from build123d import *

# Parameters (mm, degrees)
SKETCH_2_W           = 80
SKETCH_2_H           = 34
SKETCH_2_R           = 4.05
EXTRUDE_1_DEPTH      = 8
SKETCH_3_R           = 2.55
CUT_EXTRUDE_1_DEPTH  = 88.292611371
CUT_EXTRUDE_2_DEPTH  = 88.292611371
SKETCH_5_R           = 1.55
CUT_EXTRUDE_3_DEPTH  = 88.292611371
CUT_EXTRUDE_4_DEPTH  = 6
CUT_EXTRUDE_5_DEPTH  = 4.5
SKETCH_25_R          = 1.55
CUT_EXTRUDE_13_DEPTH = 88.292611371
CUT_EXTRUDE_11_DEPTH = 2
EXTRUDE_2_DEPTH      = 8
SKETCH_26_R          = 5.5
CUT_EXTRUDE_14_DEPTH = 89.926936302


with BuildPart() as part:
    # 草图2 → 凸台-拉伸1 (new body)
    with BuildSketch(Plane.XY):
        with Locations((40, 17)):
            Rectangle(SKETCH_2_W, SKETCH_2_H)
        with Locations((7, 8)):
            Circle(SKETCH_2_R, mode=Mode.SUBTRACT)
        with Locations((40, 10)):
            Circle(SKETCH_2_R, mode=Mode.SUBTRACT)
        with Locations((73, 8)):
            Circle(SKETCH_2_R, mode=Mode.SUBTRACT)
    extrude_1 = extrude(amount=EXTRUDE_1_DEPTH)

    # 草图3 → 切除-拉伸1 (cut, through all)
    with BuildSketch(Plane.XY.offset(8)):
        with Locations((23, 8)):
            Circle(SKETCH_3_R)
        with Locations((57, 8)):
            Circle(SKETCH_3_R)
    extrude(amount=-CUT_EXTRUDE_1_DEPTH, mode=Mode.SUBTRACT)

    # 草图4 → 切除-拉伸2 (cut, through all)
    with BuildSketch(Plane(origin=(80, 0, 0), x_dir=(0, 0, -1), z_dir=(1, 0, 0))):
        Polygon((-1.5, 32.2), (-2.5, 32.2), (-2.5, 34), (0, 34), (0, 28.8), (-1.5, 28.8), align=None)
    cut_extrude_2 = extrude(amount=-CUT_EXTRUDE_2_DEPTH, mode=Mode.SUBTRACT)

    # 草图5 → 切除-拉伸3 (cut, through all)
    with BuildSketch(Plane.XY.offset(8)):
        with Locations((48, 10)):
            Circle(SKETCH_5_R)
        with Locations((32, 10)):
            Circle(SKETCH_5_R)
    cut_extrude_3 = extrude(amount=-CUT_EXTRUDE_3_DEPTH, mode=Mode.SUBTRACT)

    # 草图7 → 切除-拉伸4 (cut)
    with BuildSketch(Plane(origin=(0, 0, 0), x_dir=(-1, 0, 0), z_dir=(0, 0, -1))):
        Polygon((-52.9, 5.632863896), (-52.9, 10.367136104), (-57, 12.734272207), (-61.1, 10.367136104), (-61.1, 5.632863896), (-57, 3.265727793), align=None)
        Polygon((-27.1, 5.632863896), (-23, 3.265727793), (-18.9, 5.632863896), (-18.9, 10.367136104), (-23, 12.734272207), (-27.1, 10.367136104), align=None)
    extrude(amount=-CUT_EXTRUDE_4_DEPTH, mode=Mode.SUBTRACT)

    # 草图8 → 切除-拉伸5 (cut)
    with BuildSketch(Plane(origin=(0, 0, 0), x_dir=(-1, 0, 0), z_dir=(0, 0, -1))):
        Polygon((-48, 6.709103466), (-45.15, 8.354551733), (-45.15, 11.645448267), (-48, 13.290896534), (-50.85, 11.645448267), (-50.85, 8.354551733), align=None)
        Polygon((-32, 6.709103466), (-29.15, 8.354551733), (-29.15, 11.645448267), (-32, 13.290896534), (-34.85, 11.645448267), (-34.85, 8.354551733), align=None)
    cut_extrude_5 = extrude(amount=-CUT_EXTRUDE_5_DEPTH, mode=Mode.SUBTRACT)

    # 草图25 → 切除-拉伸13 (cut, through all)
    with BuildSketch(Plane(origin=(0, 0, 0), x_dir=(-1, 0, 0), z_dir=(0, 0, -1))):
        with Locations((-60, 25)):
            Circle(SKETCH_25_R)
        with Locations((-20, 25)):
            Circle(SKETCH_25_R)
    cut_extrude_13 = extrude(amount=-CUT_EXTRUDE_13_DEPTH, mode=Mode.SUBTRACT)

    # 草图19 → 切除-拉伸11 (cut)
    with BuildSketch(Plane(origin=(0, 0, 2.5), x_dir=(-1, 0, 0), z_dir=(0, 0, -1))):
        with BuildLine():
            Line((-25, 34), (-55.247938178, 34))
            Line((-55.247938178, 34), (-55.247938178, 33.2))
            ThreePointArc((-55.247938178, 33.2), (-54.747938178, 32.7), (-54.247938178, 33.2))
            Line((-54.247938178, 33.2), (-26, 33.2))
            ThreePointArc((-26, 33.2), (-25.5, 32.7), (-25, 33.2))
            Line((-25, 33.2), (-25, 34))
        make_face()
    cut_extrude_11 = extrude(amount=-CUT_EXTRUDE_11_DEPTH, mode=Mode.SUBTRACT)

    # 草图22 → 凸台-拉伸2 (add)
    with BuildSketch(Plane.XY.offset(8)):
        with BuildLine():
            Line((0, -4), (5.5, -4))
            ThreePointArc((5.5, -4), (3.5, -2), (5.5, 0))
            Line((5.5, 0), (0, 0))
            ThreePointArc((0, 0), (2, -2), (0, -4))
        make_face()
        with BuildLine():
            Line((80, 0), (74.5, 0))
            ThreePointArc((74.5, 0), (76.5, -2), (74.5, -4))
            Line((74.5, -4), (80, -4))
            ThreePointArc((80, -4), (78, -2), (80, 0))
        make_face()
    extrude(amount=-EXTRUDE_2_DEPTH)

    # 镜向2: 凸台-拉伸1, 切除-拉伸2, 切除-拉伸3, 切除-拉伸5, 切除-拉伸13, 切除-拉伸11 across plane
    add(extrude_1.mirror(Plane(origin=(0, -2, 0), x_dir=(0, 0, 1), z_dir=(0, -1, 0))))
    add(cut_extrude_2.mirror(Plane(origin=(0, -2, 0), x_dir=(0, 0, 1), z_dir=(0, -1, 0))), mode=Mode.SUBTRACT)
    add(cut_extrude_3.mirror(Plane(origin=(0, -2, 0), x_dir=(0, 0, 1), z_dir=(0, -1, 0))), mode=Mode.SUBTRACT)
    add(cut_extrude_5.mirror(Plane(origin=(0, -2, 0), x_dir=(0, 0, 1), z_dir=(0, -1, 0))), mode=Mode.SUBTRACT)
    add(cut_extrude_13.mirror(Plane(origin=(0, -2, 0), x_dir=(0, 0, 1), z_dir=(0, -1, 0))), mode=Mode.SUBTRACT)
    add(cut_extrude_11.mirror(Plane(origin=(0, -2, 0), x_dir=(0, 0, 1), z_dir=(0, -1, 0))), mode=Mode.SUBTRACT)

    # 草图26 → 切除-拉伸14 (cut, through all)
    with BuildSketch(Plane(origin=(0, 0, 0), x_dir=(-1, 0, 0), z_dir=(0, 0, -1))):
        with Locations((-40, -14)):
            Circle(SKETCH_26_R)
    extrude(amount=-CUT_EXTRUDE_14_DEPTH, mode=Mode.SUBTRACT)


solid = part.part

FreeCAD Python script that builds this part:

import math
import FreeCAD as App
import Part
import Sketcher
from FreeCAD import Vector
Q = App.Units.Quantity


def add_polygon(sketch, points):
    """Adds a closed chain of lines whose ends are joined by coincident constraints."""
    first, n = sketch.GeometryCount, len(points)
    for a, b in zip(points, points[1:] + points[:1]):
        sketch.addGeometry(Part.LineSegment(App.Vector(*a, 0), App.Vector(*b, 0)), False)
    for i in range(n):
        sketch.addConstraint(Sketcher.Constraint("Coincident", first + i, 2, first + (i + 1) % n, 1))

doc = App.newDocument("Part")
body = doc.addObject("PartDesign::Body", "Body")

sketch1 = body.newObject("Sketcher::SketchObject", "Sketch")
sketch1.AttachmentSupport = (doc.getObject("XY_Plane"), [""])
sketch1.MapMode = "FlatFace"
add_polygon(sketch1, [(0, 34), (0, 0), (80, 0), (80, 34)])
sketch1.addGeometry(Part.Circle(Vector(7, 8, 0), Vector(0, 0, 1), 4), False)
sketch1.addGeometry(Part.Circle(Vector(73, 8, 0), Vector(0, 0, 1), 4), False)
sketch1.addGeometry(Part.Circle(Vector(40, 10, 0), Vector(0, 0, 1), 4), False)
sketch1.addConstraint([
    Sketcher.Constraint("Vertical", 0),
    Sketcher.Constraint("Horizontal", 1),
    Sketcher.Constraint("Vertical", 2),
    Sketcher.Constraint("Horizontal", 3),
    Sketcher.Constraint("Coincident", 0, 2, -1, 1),
    Sketcher.Constraint("Equal", 4, 5),
    Sketcher.Constraint("Equal", 5, 6),
    Sketcher.Constraint("Horizontal", 4, 3, 5, 3),
    Sketcher.Constraint("Diameter", 4, Q("8.1 mm")),
    Sketcher.Constraint("DistanceX", 1, 1, 1, 2, Q("80 mm")),
    Sketcher.Constraint("DistanceY", 0, 2, 0, 1, Q("34 mm")),
    Sketcher.Constraint("DistanceX", -1, 1, 4, 3, Q("7 mm")),
    Sketcher.Constraint("DistanceY", -1, 1, 4, 3, Q("8 mm")),
    Sketcher.Constraint("DistanceX", -1, 1, 5, 3, Q("73 mm")),
    Sketcher.Constraint("DistanceX", -1, 1, 6, 3, Q("40 mm")),
    Sketcher.Constraint("DistanceY", -1, 1, 6, 3, Q("10 mm")),
])
pad1 = body.newObject("PartDesign::Pad", "Pad")
pad1.Profile = sketch1
pad1.Length = 8

sketch2 = body.newObject("Sketcher::SketchObject", "Sketch001")
sketch2.AttachmentSupport = (doc.getObject("XY_Plane"), [""])
sketch2.MapMode = "FlatFace"
sketch2.AttachmentOffset = App.Placement(Vector(0, 0, 8), App.Rotation())
sketch2.addGeometry([
    Part.Circle(Vector(23, 8, 0), Vector(0, 0, 1), 2.5),
    Part.Circle(Vector(57, 8, 0), Vector(0, 0, 1), 2.5),
], False)
sketch2.addConstraint([
    Sketcher.Constraint("Equal", 0, 1),
    Sketcher.Constraint("Horizontal", 0, 3, 1, 3),
    Sketcher.Constraint("Diameter", 0, Q("5.1 mm")),
    Sketcher.Constraint("DistanceX", -1, 1, 0, 3, Q("23 mm")),
    Sketcher.Constraint("DistanceY", -1, 1, 0, 3, Q("8 mm")),
    Sketcher.Constraint("DistanceX", -1, 1, 1, 3, Q("57 mm")),
])
pocket1 = body.newObject("PartDesign::Pocket", "Pocket")
pocket1.Profile = sketch2
pocket1.Type = "ThroughAll"

sketch3 = body.newObject("Sketcher::SketchObject", "Sketch002")
sketch3.AttachmentSupport = (doc.getObject("YZ_Plane"), [""])
sketch3.MapMode = "FlatFace"
sketch3.AttachmentOffset = App.Placement(Vector(0, 0, 80), App.Rotation())
add_polygon(sketch3, [(32.2, 2.5), (32.2, 1.5), (28.8, 1.5), (28.8, 0), (34, 0), (34, 2.5)])
sketch3.addConstraint([
    Sketcher.Constraint("Vertical", 0),
    Sketcher.Constraint("Horizontal", 1),
    Sketcher.Constraint("Vertical", 2),
    Sketcher.Constraint("Horizontal", 3),
    Sketcher.Constraint("Vertical", 4),
    Sketcher.Constraint("Horizontal", 5),
    Sketcher.Constraint("PointOnObject", 2, 2, -1),
    Sketcher.Constraint("DistanceY", 0, 2, 0, 1, Q("1 mm")),
    Sketcher.Constraint("DistanceX", 1, 2, 1, 1, Q("3.4 mm")),
    Sketcher.Constraint("DistanceX", 3, 1, 3, 2, Q("5.2 mm")),
    Sketcher.Constraint("DistanceY", 2, 2, 2, 1, Q("1.5 mm")),
    Sketcher.Constraint("DistanceX", -1, 1, 3, 2, Q("34 mm")),
])
pocket2 = body.newObject("PartDesign::Pocket", "Pocket001")
pocket2.Profile = sketch3
pocket2.Type = "ThroughAll"

sketch4 = body.newObject("Sketcher::SketchObject", "Sketch003")
sketch4.AttachmentSupport = (doc.getObject("XY_Plane"), [""])
sketch4.MapMode = "FlatFace"
sketch4.AttachmentOffset = App.Placement(Vector(0, 0, 8), App.Rotation())
sketch4.addGeometry([
    Part.Circle(Vector(48, 10, 0), Vector(0, 0, 1), 1.6),
    Part.Circle(Vector(32, 10, 0), Vector(0, 0, 1), 1.6),
], False)
sketch4.addConstraint([
    Sketcher.Constraint("Equal", 0, 1),
    Sketcher.Constraint("Horizontal", 0, 3, 1, 3),
    Sketcher.Constraint("Diameter", 0, Q("3.1 mm")),
    Sketcher.Constraint("DistanceX", -1, 1, 0, 3, Q("48 mm")),
    Sketcher.Constraint("DistanceY", -1, 1, 0, 3, Q("10 mm")),
    Sketcher.Constraint("DistanceX", -1, 1, 1, 3, Q("32 mm")),
])
pocket3 = body.newObject("PartDesign::Pocket", "Pocket002")
pocket3.Profile = sketch4
pocket3.Type = "ThroughAll"

sketch5 = body.newObject("Sketcher::SketchObject", "Sketch004")
sketch5.AttachmentSupport = (doc.getObject("XY_Plane"), [""])
sketch5.MapMode = "FlatFace"
add_polygon(sketch5, [(52.9, 5.6), (52.9, 10.4), (57, 12.7), (61.1, 10.4), (61.1, 5.6), (57, 3.3)])
add_polygon(sketch5, [(27.1, 5.6), (23, 3.3), (18.9, 5.6), (18.9, 10.4), (23, 12.7), (27.1, 10.4)])
sketch5.addConstraint([
    Sketcher.Constraint("Vertical", 0),
    Sketcher.Constraint("Vertical", 3),
    Sketcher.Constraint("Vertical", 8),
    Sketcher.Constraint("Vertical", 11),
    Sketcher.Constraint("Parallel", 1, 4),
    Sketcher.Constraint("Parallel", 2, 5),
    Sketcher.Constraint("Parallel", 4, 6),
    Sketcher.Constraint("Parallel", 5, 7),
    Sketcher.Constraint("Parallel", 6, 9),
    Sketcher.Constraint("Parallel", 7, 10),
    Sketcher.Constraint("Horizontal", 0, 2, 2, 2),
    Sketcher.Constraint("Horizontal", 3, 2, 5, 2),
    Sketcher.Constraint("Horizontal", 4, 2, 6, 2),
    Sketcher.Constraint("Horizontal", 5, 2, 7, 2),
    Sketcher.Constraint("Horizontal", 2, 2, 8, 2),
    Sketcher.Constraint("Horizontal", 1, 2, 9, 2),
    Sketcher.Constraint("Horizontal", 8, 2, 10, 2),
    Sketcher.Constraint("Vertical", 1, 2, 4, 2),
    Sketcher.Constraint("Angle", 1, Q("30 deg")),
    Sketcher.Constraint("DistanceX", -1, 1, 1, 2, Q("57 mm")),
    Sketcher.Constraint("DistanceX", -1, 1, 6, 2, Q("23 mm")),
    Sketcher.Constraint("DistanceX", -1, 1, 0, 2, Q("52.9 mm")),
    Sketcher.Constraint("DistanceY", 0, 1, 0, 2, Q("4.734272 mm")),
    Sketcher.Constraint("DistanceY", -1, 1, 0, 2, Q("10.367136 mm")),
])
pocket4 = body.newObject("PartDesign::Pocket", "Pocket003")
pocket4.Profile = sketch5
pocket4.Length = 6
pocket4.Reversed = True

sketch6 = body.newObject("Sketcher::SketchObject", "Sketch005")
sketch6.AttachmentSupport = (doc.getObject("XY_Plane"), [""])
sketch6.MapMode = "FlatFace"
add_polygon(sketch6, [(48, 6.7), (45.1, 8.4), (45.1, 11.6), (48, 13.3), (50.9, 11.6), (50.9, 8.4)])
add_polygon(sketch6, [(32, 6.7), (29.1, 8.4), (29.1, 11.6), (32, 13.3), (34.9, 11.6), (34.9, 8.4)])
sketch6.addConstraint([
    Sketcher.Constraint("Vertical", 1),
    Sketcher.Constraint("Vertical", 4),
    Sketcher.Constraint("Vertical", 7),
    Sketcher.Constraint("Vertical", 10),
    Sketcher.Constraint("Parallel", 0, 3),
    Sketcher.Constraint("Parallel", 2, 5),
    Sketcher.Constraint("Parallel", 3, 6),
    Sketcher.Constraint("Parallel", 5, 8),
    Sketcher.Constraint("Parallel", 6, 9),
    Sketcher.Constraint("Parallel", 8, 11),
    Sketcher.Constraint("Horizontal", 1, 2, 3, 2),
    Sketcher.Constraint("Horizontal", 0, 2, 4, 2),
    Sketcher.Constraint("Horizontal", 4, 2, 6, 2),
    Sketcher.Constraint("Horizontal", 3, 2, 7, 2),
    Sketcher.Constraint("Horizontal", 2, 2, 8, 2),
    Sketcher.Constraint("Horizontal", 7, 2, 9, 2),
    Sketcher.Constraint("Horizontal", 6, 2, 10, 2),
    Sketcher.Constraint("Vertical", 2, 2, 5, 2),
    Sketcher.Constraint("Angle", 0, Q("150 deg")),
    Sketcher.Constraint("DistanceX", -1, 1, 2, 2, Q("48 mm")),
    Sketcher.Constraint("DistanceX", -1, 1, 8, 2, Q("32 mm")),
    Sketcher.Constraint("DistanceX", 1, 2, 3, 2, Q("5.7 mm")),
    Sketcher.Constraint("DistanceY", 1, 1, 1, 2, Q("3.290897 mm")),
    Sketcher.Constraint("DistanceY", -1, 1, 0, 2, Q("8.354552 mm")),
])
pocket5 = body.newObject("PartDesign::Pocket", "Pocket004")
pocket5.Profile = sketch6
pocket5.Length = 4.5
pocket5.Reversed = True

sketch7 = body.newObject("Sketcher::SketchObject", "Sketch006")
sketch7.AttachmentSupport = (doc.getObject("XY_Plane"), [""])
sketch7.MapMode = "FlatFace"
sketch7.addGeometry([
    Part.Circle(Vector(60, 25, 0), Vector(0, 0, 1), 1.6),
    Part.Circle(Vector(20, 25, 0), Vector(0, 0, 1), 1.6),
], False)
sketch7.addConstraint([
    Sketcher.Constraint("Equal", 0, 1),
    Sketcher.Constraint("Horizontal", 0, 3, 1, 3),
    Sketcher.Constraint("Diameter", 0, Q("3.1 mm")),
    Sketcher.Constraint("DistanceX", -1, 1, 0, 3, Q("60 mm")),
    Sketcher.Constraint("DistanceY", -1, 1, 0, 3, Q("25 mm")),
    Sketcher.Constraint("DistanceX", -1, 1, 1, 3, Q("20 mm")),
])
pocket6 = body.newObject("PartDesign::Pocket", "Pocket005")
pocket6.Profile = sketch7
pocket6.Type = "ThroughAll"
pocket6.Reversed = True

sketch8 = body.newObject("Sketcher::SketchObject", "Sketch007")
sketch8.AttachmentSupport = (doc.getObject("XY_Plane"), [""])
sketch8.MapMode = "FlatFace"
sketch8.AttachmentOffset = App.Placement(Vector(0, 0, 2.5), App.Rotation())
sketch8.addGeometry([
    Part.LineSegment(Vector(25, 34, 0), Vector(55.2, 34, 0)),
    Part.LineSegment(Vector(55.2, 34, 0), Vector(55.2, 33.2, 0)),
    Part.ArcOfCircle(Part.Circle(Vector(54.7, 33.2, 0), Vector(0, 0, 1), 0.5), math.radians(180), math.radians(360)),
    Part.LineSegment(Vector(54.2, 33.2, 0), Vector(26, 33.2, 0)),
    Part.ArcOfCircle(Part.Circle(Vector(25.5, 33.2, 0), Vector(0, 0, 1), 0.5), math.radians(180), math.radians(360)),
    Part.LineSegment(Vector(25, 33.2, 0), Vector(25, 34, 0)),
], False)
sketch8.addConstraint([
    Sketcher.Constraint("Coincident", 0, 2, 1, 1),
    Sketcher.Constraint("Tangent", 1, 2, 2, 2),
    Sketcher.Constraint("Coincident", 2, 1, 3, 1),
    Sketcher.Constraint("Coincident", 3, 2, 4, 2),
    Sketcher.Constraint("Tangent", 4, 1, 5, 1),
    Sketcher.Constraint("Coincident", 5, 2, 0, 1),
    Sketcher.Constraint("Horizontal", 0),
    Sketcher.Constraint("Vertical", 1),
    Sketcher.Constraint("Horizontal", 3),
    Sketcher.Constraint("Vertical", 5),
    Sketcher.Constraint("Equal", 2, 4),
    Sketcher.Constraint("Horizontal", 2, 3, 4, 3),
    Sketcher.Constraint("Horizontal", 1, 2, 2, 1),
    Sketcher.Constraint("Radius", 2, Q("0.5 mm")),
    Sketcher.Constraint("DistanceY", 1, 2, 1, 1, Q("0.8 mm")),
    Sketcher.Constraint("DistanceY", -1, 1, 0, 2, Q("34 mm")),
    Sketcher.Constraint("DistanceX", -1, 1, 3, 2, Q("26 mm")),
    Sketcher.Constraint("DistanceX", 0, 1, 0, 2, Q("30.247938 mm")),
])
pocket7 = body.newObject("PartDesign::Pocket", "Pocket006")
pocket7.Profile = sketch8
pocket7.Length = 2
pocket7.Reversed = True

sketch9 = body.newObject("Sketcher::SketchObject", "Sketch008")
sketch9.AttachmentSupport = (doc.getObject("XY_Plane"), [""])
sketch9.MapMode = "FlatFace"
sketch9.AttachmentOffset = App.Placement(Vector(0, 0, 8), App.Rotation())
sketch9.addGeometry([
    Part.LineSegment(Vector(0, -4, 0), Vector(5.5, -4, 0)),
    Part.ArcOfCircle(Part.Circle(Vector(5.5, -2, 0), Vector(0, 0, 1), 2), math.radians(90), math.radians(270)),
    Part.LineSegment(Vector(5.5, 0, 0), Vector(0, 0, 0)),
    Part.ArcOfCircle(Part.Circle(Vector(0, -2, 0), Vector(0, 0, 1), 2), math.radians(-90), math.radians(90)),
    Part.LineSegment(Vector(80, 0, 0), Vector(74.5, 0, 0)),
    Part.ArcOfCircle(Part.Circle(Vector(74.5, -2, 0), Vector(0, 0, 1), 2), math.radians(-90), math.radians(90)),
    Part.LineSegment(Vector(74.5, -4, 0), Vector(80, -4, 0)),
    Part.ArcOfCircle(Part.Circle(Vector(80, -2, 0), Vector(0, 0, 1), 2), math.radians(90), math.radians(270)),
], False)
sketch9.addConstraint([
    Sketcher.Constraint("Tangent", 0, 2, 1, 2),
    Sketcher.Constraint("Tangent", 1, 1, 2, 1),
    Sketcher.Constraint("Tangent", 2, 2, 3, 2),
    Sketcher.Constraint("Tangent", 3, 1, 0, 1),
    Sketcher.Constraint("Tangent", 4, 2, 5, 2),
    Sketcher.Constraint("Tangent", 5, 1, 6, 1),
    Sketcher.Constraint("Tangent", 6, 2, 7, 2),
    Sketcher.Constraint("Tangent", 7, 1, 4, 1),
    Sketcher.Constraint("Horizontal", 0),
    Sketcher.Constraint("Horizontal", 2),
    Sketcher.Constraint("Horizontal", 4),
    Sketcher.Constraint("Horizontal", 6),
    Sketcher.Constraint("Coincident", 2, 2, -1, 1),
    Sketcher.Constraint("Equal", 3, 5),
    Sketcher.Constraint("PointOnObject", 4, 2, -1),
    Sketcher.Constraint("Equal", 2, 4),
    Sketcher.Constraint("Radius", 1, Q("2 mm")),
    Sketcher.Constraint("DistanceX", 0, 1, 0, 2, Q("5.5 mm")),
    Sketcher.Constraint("DistanceX", -1, 1, 7, 3, Q("80 mm")),
])
pad2 = body.newObject("PartDesign::Pad", "Pad001")
pad2.Profile = sketch9
pad2.Length = 8
pad2.Reversed = True
doc.recompute()

datumplane = body.newObject("PartDesign::Plane", "DatumPlane")
datumplane.AttachmentSupport = (doc.getObject("XZ_Plane"), [""])
datumplane.MapMode = "FlatFace"
datumplane.AttachmentOffset = App.Placement(Vector(0, 0, 2), App.Rotation())
mirrored = body.newObject("PartDesign::Mirrored", "Mirrored")
mirrored.Originals = [pad1, pocket2, pocket3, pocket5, pocket6, pocket7]
mirrored.MirrorPlane = (datumplane, [""])
body.Tip = mirrored

sketch10 = body.newObject("Sketcher::SketchObject", "Sketch009")
sketch10.AttachmentSupport = (doc.getObject("XY_Plane"), [""])
sketch10.MapMode = "FlatFace"
sketch10.addGeometry(Part.Circle(Vector(40, -14, 0), Vector(0, 0, 1), 6), False)
sketch10.addConstraint([
    Sketcher.Constraint("Diameter", 0, Q("11 mm")),
    Sketcher.Constraint("DistanceX", -1, 1, 0, 3, Q("40 mm")),
    Sketcher.Constraint("DistanceY", 0, 3, -1, 1, Q("14 mm")),
])
pocket8 = body.newObject("PartDesign::Pocket", "Pocket007")
pocket8.Profile = sketch10
pocket8.Type = "ThroughAll"
pocket8.Reversed = True

doc.recompute()
